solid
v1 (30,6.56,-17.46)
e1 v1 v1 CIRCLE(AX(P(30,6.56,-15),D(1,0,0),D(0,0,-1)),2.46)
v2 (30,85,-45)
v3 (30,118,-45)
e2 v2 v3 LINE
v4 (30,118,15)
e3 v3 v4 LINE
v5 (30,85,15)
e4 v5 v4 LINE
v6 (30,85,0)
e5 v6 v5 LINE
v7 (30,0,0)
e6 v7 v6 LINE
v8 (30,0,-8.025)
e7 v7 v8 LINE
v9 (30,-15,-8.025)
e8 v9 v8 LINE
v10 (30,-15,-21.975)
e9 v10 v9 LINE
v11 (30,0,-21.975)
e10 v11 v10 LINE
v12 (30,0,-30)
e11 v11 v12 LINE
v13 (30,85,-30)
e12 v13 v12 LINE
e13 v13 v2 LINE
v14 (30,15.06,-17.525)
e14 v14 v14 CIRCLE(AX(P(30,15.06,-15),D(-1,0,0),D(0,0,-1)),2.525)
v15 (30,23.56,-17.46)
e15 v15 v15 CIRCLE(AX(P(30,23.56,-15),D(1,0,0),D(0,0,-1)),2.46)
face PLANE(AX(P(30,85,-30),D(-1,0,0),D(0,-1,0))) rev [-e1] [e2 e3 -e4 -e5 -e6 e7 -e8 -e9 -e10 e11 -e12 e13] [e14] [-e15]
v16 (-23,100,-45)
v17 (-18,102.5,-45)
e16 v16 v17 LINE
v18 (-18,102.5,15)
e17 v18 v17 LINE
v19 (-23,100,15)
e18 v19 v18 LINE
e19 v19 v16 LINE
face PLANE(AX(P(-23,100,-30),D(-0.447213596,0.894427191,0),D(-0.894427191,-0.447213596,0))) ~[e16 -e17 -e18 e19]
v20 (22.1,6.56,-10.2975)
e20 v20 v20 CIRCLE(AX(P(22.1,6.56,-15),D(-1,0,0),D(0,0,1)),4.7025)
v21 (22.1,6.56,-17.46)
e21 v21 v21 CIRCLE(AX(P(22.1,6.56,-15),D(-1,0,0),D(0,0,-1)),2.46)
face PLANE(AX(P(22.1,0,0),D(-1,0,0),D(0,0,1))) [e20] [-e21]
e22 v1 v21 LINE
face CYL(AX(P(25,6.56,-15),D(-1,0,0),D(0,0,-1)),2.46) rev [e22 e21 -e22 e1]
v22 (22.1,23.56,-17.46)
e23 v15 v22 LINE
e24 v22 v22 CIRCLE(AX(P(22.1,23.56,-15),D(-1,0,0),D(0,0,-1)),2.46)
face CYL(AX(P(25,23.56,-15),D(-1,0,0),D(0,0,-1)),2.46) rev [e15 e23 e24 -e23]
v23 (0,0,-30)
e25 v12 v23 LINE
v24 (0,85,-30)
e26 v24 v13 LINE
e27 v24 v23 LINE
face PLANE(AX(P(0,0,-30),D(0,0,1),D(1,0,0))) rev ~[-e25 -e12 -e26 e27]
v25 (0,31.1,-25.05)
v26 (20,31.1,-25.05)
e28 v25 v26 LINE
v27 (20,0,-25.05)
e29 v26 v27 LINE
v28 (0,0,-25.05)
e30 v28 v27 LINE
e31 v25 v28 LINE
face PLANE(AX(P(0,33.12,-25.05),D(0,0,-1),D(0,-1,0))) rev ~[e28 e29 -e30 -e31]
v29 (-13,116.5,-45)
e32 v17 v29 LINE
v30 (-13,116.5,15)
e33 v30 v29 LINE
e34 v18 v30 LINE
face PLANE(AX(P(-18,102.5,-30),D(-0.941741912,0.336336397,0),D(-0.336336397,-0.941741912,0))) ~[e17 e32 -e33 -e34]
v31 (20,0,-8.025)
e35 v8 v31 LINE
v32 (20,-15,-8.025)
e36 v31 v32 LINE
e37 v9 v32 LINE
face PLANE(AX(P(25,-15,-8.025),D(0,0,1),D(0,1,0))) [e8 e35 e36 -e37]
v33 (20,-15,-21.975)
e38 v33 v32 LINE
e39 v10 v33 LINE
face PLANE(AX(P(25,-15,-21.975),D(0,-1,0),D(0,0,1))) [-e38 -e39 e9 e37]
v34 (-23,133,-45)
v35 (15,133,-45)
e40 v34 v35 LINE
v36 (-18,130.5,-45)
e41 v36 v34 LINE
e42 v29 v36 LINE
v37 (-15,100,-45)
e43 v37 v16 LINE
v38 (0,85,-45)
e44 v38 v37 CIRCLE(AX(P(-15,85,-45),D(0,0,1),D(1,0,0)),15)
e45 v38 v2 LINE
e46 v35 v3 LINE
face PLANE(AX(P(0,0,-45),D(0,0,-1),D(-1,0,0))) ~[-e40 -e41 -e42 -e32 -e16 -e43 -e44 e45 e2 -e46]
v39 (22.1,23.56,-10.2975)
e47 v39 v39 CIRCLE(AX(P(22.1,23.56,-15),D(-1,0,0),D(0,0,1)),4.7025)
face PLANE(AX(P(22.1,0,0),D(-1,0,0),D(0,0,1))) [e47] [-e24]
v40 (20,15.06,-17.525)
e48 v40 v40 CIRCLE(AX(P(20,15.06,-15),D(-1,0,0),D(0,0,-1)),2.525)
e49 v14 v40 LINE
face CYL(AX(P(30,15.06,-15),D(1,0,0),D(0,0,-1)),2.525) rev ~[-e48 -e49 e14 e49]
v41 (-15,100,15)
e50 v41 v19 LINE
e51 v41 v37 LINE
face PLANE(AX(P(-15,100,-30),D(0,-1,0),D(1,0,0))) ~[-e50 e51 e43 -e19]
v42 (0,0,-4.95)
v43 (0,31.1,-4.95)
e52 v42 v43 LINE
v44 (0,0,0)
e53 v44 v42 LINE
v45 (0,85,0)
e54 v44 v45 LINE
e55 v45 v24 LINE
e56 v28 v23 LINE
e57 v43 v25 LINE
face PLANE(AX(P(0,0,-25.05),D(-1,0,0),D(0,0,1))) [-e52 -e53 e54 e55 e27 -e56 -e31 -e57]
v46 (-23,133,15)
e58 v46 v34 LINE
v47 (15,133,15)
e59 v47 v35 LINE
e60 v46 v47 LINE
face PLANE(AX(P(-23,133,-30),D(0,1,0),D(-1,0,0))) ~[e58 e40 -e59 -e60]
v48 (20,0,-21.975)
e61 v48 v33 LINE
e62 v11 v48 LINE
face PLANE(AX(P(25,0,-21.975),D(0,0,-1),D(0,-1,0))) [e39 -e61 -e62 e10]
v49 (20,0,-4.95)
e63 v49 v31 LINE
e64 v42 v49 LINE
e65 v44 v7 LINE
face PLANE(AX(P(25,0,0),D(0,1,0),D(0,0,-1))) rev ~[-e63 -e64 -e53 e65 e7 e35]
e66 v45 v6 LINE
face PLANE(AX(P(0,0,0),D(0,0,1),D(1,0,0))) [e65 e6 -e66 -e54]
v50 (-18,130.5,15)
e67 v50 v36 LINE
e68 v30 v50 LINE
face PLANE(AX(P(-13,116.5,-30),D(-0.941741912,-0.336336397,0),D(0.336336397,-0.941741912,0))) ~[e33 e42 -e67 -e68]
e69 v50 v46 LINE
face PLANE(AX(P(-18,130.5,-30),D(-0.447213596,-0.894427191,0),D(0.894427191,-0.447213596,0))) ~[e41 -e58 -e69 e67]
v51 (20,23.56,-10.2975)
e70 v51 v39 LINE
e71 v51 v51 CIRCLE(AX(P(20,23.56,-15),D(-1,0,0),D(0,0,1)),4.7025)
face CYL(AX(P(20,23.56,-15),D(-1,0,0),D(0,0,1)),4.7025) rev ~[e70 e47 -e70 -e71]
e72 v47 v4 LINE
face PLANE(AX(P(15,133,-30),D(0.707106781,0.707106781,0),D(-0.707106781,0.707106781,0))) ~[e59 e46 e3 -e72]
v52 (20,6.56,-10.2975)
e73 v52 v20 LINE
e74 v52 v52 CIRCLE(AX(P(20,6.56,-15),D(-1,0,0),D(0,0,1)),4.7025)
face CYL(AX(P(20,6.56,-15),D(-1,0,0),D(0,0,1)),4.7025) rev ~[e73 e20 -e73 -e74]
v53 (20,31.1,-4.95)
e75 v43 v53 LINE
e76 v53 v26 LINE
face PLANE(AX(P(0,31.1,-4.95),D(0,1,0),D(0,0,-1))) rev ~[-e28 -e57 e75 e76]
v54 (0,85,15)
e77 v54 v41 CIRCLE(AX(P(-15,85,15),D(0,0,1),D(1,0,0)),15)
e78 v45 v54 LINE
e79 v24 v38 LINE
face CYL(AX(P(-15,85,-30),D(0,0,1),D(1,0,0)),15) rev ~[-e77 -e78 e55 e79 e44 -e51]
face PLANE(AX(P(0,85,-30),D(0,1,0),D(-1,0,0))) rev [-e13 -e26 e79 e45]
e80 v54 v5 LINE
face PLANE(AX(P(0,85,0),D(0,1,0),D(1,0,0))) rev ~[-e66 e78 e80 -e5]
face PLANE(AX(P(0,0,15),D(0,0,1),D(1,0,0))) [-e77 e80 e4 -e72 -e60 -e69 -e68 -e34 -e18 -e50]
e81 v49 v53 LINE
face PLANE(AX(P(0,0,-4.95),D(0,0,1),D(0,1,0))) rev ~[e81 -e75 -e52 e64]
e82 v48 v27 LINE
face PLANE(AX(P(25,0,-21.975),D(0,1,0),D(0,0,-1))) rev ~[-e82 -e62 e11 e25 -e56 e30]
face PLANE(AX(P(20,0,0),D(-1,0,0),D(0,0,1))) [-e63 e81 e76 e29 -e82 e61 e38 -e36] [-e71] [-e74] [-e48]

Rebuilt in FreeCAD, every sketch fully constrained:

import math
import FreeCAD as App
import Part
import Sketcher
Q = App.Units.Quantity


def add_polygon(sketch, points):
    """Adds a closed chain of lines whose ends are joined by coincident constraints."""
    first, n = sketch.GeometryCount, len(points)
    for a, b in zip(points, points[1:] + points[:1]):
        sketch.addGeometry(Part.LineSegment(App.Vector(*a, 0), App.Vector(*b, 0)), False)
    for i in range(n):
        sketch.addConstraint(Sketcher.Constraint("Coincident", first + i, 2, first + (i + 1) % n, 1))

doc = App.newDocument("Part")
body = doc.addObject("PartDesign::Body", "Body")

# Sketch on XY plane
sketch1 = body.newObject("Sketcher::SketchObject", "Sketch")
sketch1.AttachmentSupport = (doc.getObject("XY_Plane"), [""])
sketch1.MapMode = "FlatFace"
add_polygon(sketch1, [(0, 40), (0, 0), (25, 0), (25, 40)])  # lines 0-3
sketch1.addConstraint(Sketcher.Constraint("Vertical", 0))
sketch1.addConstraint(Sketcher.Constraint("Horizontal", 1))
sketch1.addConstraint(Sketcher.Constraint("Vertical", 2))
sketch1.addConstraint(Sketcher.Constraint("Horizontal", 3))
sketch1.addConstraint(Sketcher.Constraint("Coincident", 0, 2, -1, 1))
sketch1.addConstraint(Sketcher.Constraint("DistanceX", 1, 1, 1, 2, Q("25 mm")))
sketch1.addConstraint(Sketcher.Constraint("DistanceY", 0, 2, 0, 1, Q("40 mm")))
pad1 = body.newObject("PartDesign::Pad", "Pad")
pad1.Profile = sketch1
pad1.Length = 30
pad1.Reversed = True

# Sketch on YZ plane
sketch2 = body.newObject("Sketcher::SketchObject", "Sketch001")
sketch2.AttachmentSupport = (doc.getObject("YZ_Plane"), [""])
sketch2.MapMode = "FlatFace"
sketch2.AttachmentOffset = App.Placement(App.Vector(0, 0, 25), App.Rotation())
sketch2.addGeometry(Part.Circle(App.Vector(6.6, -15, 0), App.Vector(0, 0, 1), 2.5), False)
sketch2.addConstraint(Sketcher.Constraint("Diameter", 0, Q("4.92 mm")))
sketch2.addConstraint(Sketcher.Constraint("DistanceY", 0, 3, -1, 1, Q("15 mm")))
sketch2.addConstraint(Sketcher.Constraint("DistanceX", -1, 1, 0, 3, Q("6.56 mm")))
pocket1 = body.newObject("PartDesign::Pocket", "Pocket")
pocket1.Profile = sketch2
pocket1.Length = 30

# Sketch on YZ plane
sketch3 = body.newObject("Sketcher::SketchObject", "Sketch002")
sketch3.AttachmentSupport = (doc.getObject("YZ_Plane"), [""])
sketch3.MapMode = "FlatFace"
add_polygon(sketch3, [(0, -25), (0, -5), (33, -5), (33, -25)])  # lines 0-3
sketch3.addConstraint(Sketcher.Constraint("Vertical", 0))
sketch3.addConstraint(Sketcher.Constraint("Horizontal", 1))
sketch3.addConstraint(Sketcher.Constraint("Vertical", 2))
sketch3.addConstraint(Sketcher.Constraint("Horizontal", 3))
sketch3.addConstraint(Sketcher.Constraint("PointOnObject", 0, 2, -2))
sketch3.addConstraint(Sketcher.Constraint("DistanceY", 0, 1, 0, 2, Q("20.1 mm")))
sketch3.addConstraint(Sketcher.Constraint("DistanceX", 1, 1, 1, 2, Q("33.12 mm")))
sketch3.addConstraint(Sketcher.Constraint("DistanceY", 0, 2, -1, 1, Q("4.95 mm")))
pocket2 = body.newObject("PartDesign::Pocket", "Pocket001")
pocket2.Profile = sketch3
pocket2.Length = 20
pocket2.Reversed = True

# Sketch on XZ plane
sketch4 = body.newObject("Sketcher::SketchObject", "Sketch003")
sketch4.AttachmentSupport = (doc.getObject("XZ_Plane"), [""])
sketch4.MapMode = "FlatFace"
add_polygon(sketch4, [(25, -8), (20, -8), (20, -22), (25, -22)])  # lines 0-3
sketch4.addConstraint(Sketcher.Constraint("Horizontal", 0))
sketch4.addConstraint(Sketcher.Constraint("Vertical", 1))
sketch4.addConstraint(Sketcher.Constraint("Horizontal", 2))
sketch4.addConstraint(Sketcher.Constraint("Vertical", 3))
sketch4.addConstraint(Sketcher.Constraint("DistanceY", 1, 2, 1, 1, Q("13.95 mm")))
sketch4.addConstraint(Sketcher.Constraint("DistanceX", 0, 2, 0, 1, Q("5 mm")))
sketch4.addConstraint(Sketcher.Constraint("DistanceX", -1, 1, 0, 2, Q("20 mm")))
sketch4.addConstraint(Sketcher.Constraint("DistanceY", 0, 2, -1, 1, Q("8.025 mm")))
pad2 = body.newObject("PartDesign::Pad", "Pad001")
pad2.Profile = sketch4
pad2.Length = 15

# Sketch on YZ plane
sketch5 = body.newObject("Sketcher::SketchObject", "Sketch004")
sketch5.AttachmentSupport = (doc.getObject("YZ_Plane"), [""])
sketch5.MapMode = "FlatFace"
sketch5.AttachmentOffset = App.Placement(App.Vector(0, 0, 20), App.Rotation())
sketch5.addGeometry(Part.Circle(App.Vector(6.6, -15, 0), App.Vector(0, 0, 1), 4.7), False)
sketch5.addGeometry(Part.Circle(App.Vector(6.6, -15, 0), App.Vector(0, 0, 1), 2.5), False)
sketch5.addConstraint(Sketcher.Constraint("Coincident", 1, 3, 0, 3))
sketch5.addConstraint(Sketcher.Constraint("Diameter", 0, Q("9.405 mm")))
sketch5.addConstraint(Sketcher.Constraint("Diameter", 1, Q("4.92 mm")))
sketch5.addConstraint(Sketcher.Constraint("DistanceY", 0, 3, -1, 1, Q("15 mm")))
sketch5.addConstraint(Sketcher.Constraint("DistanceX", -1, 1, 0, 3, Q("6.56 mm")))
pocket3 = body.newObject("PartDesign::Pocket", "Pocket002")
pocket3.Profile = sketch5
pocket3.Length = 2.1
pocket3.Reversed = True

# Sketch on YZ plane
sketch6 = body.newObject("Sketcher::SketchObject", "Sketch005")
sketch6.AttachmentSupport = (doc.getObject("YZ_Plane"), [""])
sketch6.MapMode = "FlatFace"
sketch6.AttachmentOffset = App.Placement(App.Vector(0, 0, 25), App.Rotation())
sketch6.addGeometry(Part.Circle(App.Vector(23.6, -15, 0), App.Vector(0, 0, 1), 2.5), False)
sketch6.addConstraint(Sketcher.Constraint("Diameter", 0, Q("4.92 mm")))
sketch6.addConstraint(Sketcher.Constraint("DistanceY", 0, 3, -1, 1, Q("15 mm")))
sketch6.addConstraint(Sketcher.Constraint("DistanceX", -1, 1, 0, 3, Q("23.56 mm")))
pocket4 = body.newObject("PartDesign::Pocket", "Pocket003")
pocket4.Profile = sketch6
pocket4.Length = 10

# Sketch on YZ plane
sketch7 = body.newObject("Sketcher::SketchObject", "Sketch006")
sketch7.AttachmentSupport = (doc.getObject("YZ_Plane"), [""])
sketch7.MapMode = "FlatFace"
sketch7.AttachmentOffset = App.Placement(App.Vector(0, 0, 20), App.Rotation())
sketch7.addGeometry(Part.Circle(App.Vector(23.6, -15, 0), App.Vector(0, 0, 1), 4.7), False)
sketch7.addGeometry(Part.Circle(App.Vector(23.6, -15, 0), App.Vector(0, 0, 1), 2.5), False)
sketch7.addConstraint(Sketcher.Constraint("Coincident", 1, 3, 0, 3))
sketch7.addConstraint(Sketcher.Constraint("Diameter", 0, Q("9.405 mm")))
sketch7.addConstraint(Sketcher.Constraint("Diameter", 1, Q("4.92 mm")))
sketch7.addConstraint(Sketcher.Constraint("DistanceY", 0, 3, -1, 1, Q("15 mm")))
sketch7.addConstraint(Sketcher.Constraint("DistanceX", -1, 1, 0, 3, Q("23.56 mm")))
pocket5 = body.newObject("PartDesign::Pocket", "Pocket004")
pocket5.Profile = sketch7
pocket5.Length = 2.1
pocket5.Reversed = True

# Sketch on YZ plane
sketch8 = body.newObject("Sketcher::SketchObject", "Sketch007")
sketch8.AttachmentSupport = (doc.getObject("YZ_Plane"), [""])
sketch8.MapMode = "FlatFace"
sketch8.AttachmentOffset = App.Placement(App.Vector(0, 0, 25), App.Rotation())
add_polygon(sketch8, [(0, -30), (40, -30), (40, 0), (0, 0), (0, -8), (-15, -8), (-15, -22), (0, -22)])  # lines 0-7
sketch8.addGeometry(Part.Circle(App.Vector(6.6, -15, 0), App.Vector(0, 0, 1), 2.5), False)  # 8
sketch8.addGeometry(Part.Circle(App.Vector(23.6, -15, 0), App.Vector(0, 0, 1), 2.5), False)  # 9
sketch8.addConstraint(Sketcher.Constraint("Horizontal", 0))
sketch8.addConstraint(Sketcher.Constraint("Vertical", 1))
sketch8.addConstraint(Sketcher.Constraint("Horizontal", 2))
sketch8.addConstraint(Sketcher.Constraint("Vertical", 3))
sketch8.addConstraint(Sketcher.Constraint("Horizontal", 4))
sketch8.addConstraint(Sketcher.Constraint("Vertical", 5))
sketch8.addConstraint(Sketcher.Constraint("Horizontal", 6))
sketch8.addConstraint(Sketcher.Constraint("Vertical", 7))
sketch8.addConstraint(Sketcher.Constraint("Coincident", 2, 2, -1, 1))
sketch8.addConstraint(Sketcher.Constraint("Equal", 8, 9))
sketch8.addConstraint(Sketcher.Constraint("PointOnObject", 6, 2, -2))
sketch8.addConstraint(Sketcher.Constraint("Horizontal", 8, 3, 9, 3))
sketch8.addConstraint(Sketcher.Constraint("Equal", 3, 7))
sketch8.addConstraint(Sketcher.Constraint("Diameter", 8, Q("4.92 mm")))
sketch8.addConstraint(Sketcher.Constraint("DistanceX", 0, 1, 0, 2, Q("40 mm")))
sketch8.addConstraint(Sketcher.Constraint("DistanceX", 4, 2, 4, 1, Q("15 mm")))
sketch8.addConstraint(Sketcher.Constraint("DistanceY", 1, 1, 1, 2, Q("30 mm")))
sketch8.addConstraint(Sketcher.Constraint("DistanceY", 8, 3, -1, 1, Q("15 mm")))
sketch8.addConstraint(Sketcher.Constraint("DistanceX", 8, 3, 9, 3, Q("17 mm")))
sketch8.addConstraint(Sketcher.Constraint("DistanceY", 5, 2, 5, 1, Q("13.95 mm")))
sketch8.addConstraint(Sketcher.Constraint("DistanceX", -1, 1, 8, 3, Q("6.56 mm")))
pad3 = body.newObject("PartDesign::Pad", "Pad002")
pad3.Profile = sketch8
pad3.Length = 5

# Sketch on XZ plane
sketch9 = body.newObject("Sketcher::SketchObject", "Sketch008")
sketch9.AttachmentSupport = (doc.getObject("XZ_Plane"), [""])
sketch9.MapMode = "FlatFace"
sketch9.AttachmentOffset = App.Placement(App.Vector(0, 0, -40), App.Rotation())
add_polygon(sketch9, [(30, -30), (0, -30), (0, 0), (30, 0)])  # lines 0-3
sketch9.addConstraint(Sketcher.Constraint("Horizontal", 0))
sketch9.addConstraint(Sketcher.Constraint("Vertical", 1))
sketch9.addConstraint(Sketcher.Constraint("Horizontal", 2))
sketch9.addConstraint(Sketcher.Constraint("Vertical", 3))
sketch9.addConstraint(Sketcher.Constraint("Coincident", 1, 2, -1, 1))
sketch9.addConstraint(Sketcher.Constraint("Equal", 2, 1))
sketch9.addConstraint(Sketcher.Constraint("DistanceX", 0, 2, 0, 1, Q("30 mm")))
pad4 = body.newObject("PartDesign::Pad", "Pad003")
pad4.Profile = sketch9
pad4.Length = 30
pad4.Reversed = True

# Sketch on YZ plane
sketch10 = body.newObject("Sketcher::SketchObject", "Sketch009")
sketch10.AttachmentSupport = (doc.getObject("YZ_Plane"), [""])
sketch10.MapMode = "FlatFace"
sketch10.AttachmentOffset = App.Placement(App.Vector(0, 0, 30), App.Rotation())
sketch10.addGeometry(Part.Circle(App.Vector(15.1, -15, 0), App.Vector(0, 0, 1), 2.5), False)
sketch10.addConstraint(Sketcher.Constraint("Diameter", 0, Q("5.05 mm")))
sketch10.addConstraint(Sketcher.Constraint("DistanceY", 0, 3, -1, 1, Q("15 mm")))
sketch10.addConstraint(Sketcher.Constraint("DistanceX", -1, 1, 0, 3, Q("15.06 mm")))
pocket6 = body.newObject("PartDesign::Pocket", "Pocket005")
pocket6.Profile = sketch10
pocket6.Length = 30

# Sketch on XY plane
sketch11 = body.newObject("Sketcher::SketchObject", "Sketch010")
sketch11.AttachmentSupport = (doc.getObject("XY_Plane"), [""])
sketch11.MapMode = "FlatFace"
sketch11.addGeometry(Part.LineSegment(App.Vector(0, 70, 0), App.Vector(30, 70, 0)), False)
sketch11.addGeometry(Part.LineSegment(App.Vector(30, 70, 0), App.Vector(30, 118, 0)), False)
sketch11.addGeometry(Part.LineSegment(App.Vector(30, 118, 0), App.Vector(15, 133, 0)), False)
sketch11.addGeometry(Part.LineSegment(App.Vector(15, 133, 0), App.Vector(-23, 133, 0)), False)
sketch11.addGeometry(Part.LineSegment(App.Vector(-23, 133, 0), App.Vector(-18, 130, 0)), False)
sketch11.addGeometry(Part.LineSegment(App.Vector(-18, 130, 0), App.Vector(-13, 116, 0)), False)
sketch11.addGeometry(Part.LineSegment(App.Vector(-13, 116, 0), App.Vector(-18, 102, 0)), False)
sketch11.addGeometry(Part.LineSegment(App.Vector(-18, 102, 0), App.Vector(-23, 100, 0)), False)
sketch11.addGeometry(Part.LineSegment(App.Vector(-23, 100, 0), App.Vector(-15, 100, 0)), False)
sketch11.addGeometry(Part.ArcOfCircle(Part.Circle(App.Vector(-15, 85, 0), App.Vector(0, 0, 1), 15), math.radians(0), math.radians(90)), False)
sketch11.addGeometry(Part.LineSegment(App.Vector(0, 85, 0), App.Vector(0, 70, 0)), False)
sketch11.addConstraint(Sketcher.Constraint("Coincident", 0, 2, 1, 1))
sketch11.addConstraint(Sketcher.Constraint("Coincident", 1, 2, 2, 1))
sketch11.addConstraint(Sketcher.Constraint("Coincident", 2, 2, 3, 1))
sketch11.addConstraint(Sketcher.Constraint("Coincident", 3, 2, 4, 1))
sketch11.addConstraint(Sketcher.Constraint("Coincident", 4, 2, 5, 1))
sketch11.addConstraint(Sketcher.Constraint("Coincident", 5, 2, 6, 1))
sketch11.addConstraint(Sketcher.Constraint("Coincident", 6, 2, 7, 1))
sketch11.addConstraint(Sketcher.Constraint("Coincident", 7, 2, 8, 1))
sketch11.addConstraint(Sketcher.Constraint("Tangent", 8, 2, 9, 2))
sketch11.addConstraint(Sketcher.Constraint("Tangent", 9, 1, 10, 1))
sketch11.addConstraint(Sketcher.Constraint("Coincident", 10, 2, 0, 1))
sketch11.addConstraint(Sketcher.Constraint("Horizontal", 0))
sketch11.addConstraint(Sketcher.Constraint("Vertical", 1))
sketch11.addConstraint(Sketcher.Constraint("Horizontal", 3))
sketch11.addConstraint(Sketcher.Constraint("Horizontal", 8))
sketch11.addConstraint(Sketcher.Constraint("Vertical", 10))
sketch11.addConstraint(Sketcher.Constraint("PointOnObject", 9, 1, -2))
sketch11.addConstraint(Sketcher.Constraint("Vertical", 4, 2, 6, 2))
sketch11.addConstraint(Sketcher.Constraint("Vertical", 3, 2, 7, 2))
sketch11.addConstraint(Sketcher.Constraint("Equal", 5, 6))
sketch11.addConstraint(Sketcher.Constraint("Equal", 4, 7))
sketch11.addConstraint(Sketcher.Constraint("Radius", 9, Q("15 mm")))
sketch11.addConstraint(Sketcher.Constraint("DistanceX", 0, 1, 0, 2, Q("30 mm")))
sketch11.addConstraint(Sketcher.Constraint("DistanceY", 10, 2, 10, 1, Q("15 mm")))
sketch11.addConstraint(Sketcher.Constraint("DistanceX", -1, 1, 2, 2, Q("15 mm")))
sketch11.addConstraint(Sketcher.Constraint("DistanceY", 1, 2, 2, 2, Q("15 mm")))
sketch11.addConstraint(Sketcher.Constraint("DistanceX", 3, 2, 3, 1, Q("38 mm")))
sketch11.addConstraint(Sketcher.Constraint("DistanceY", 1, 1, 1, 2, Q("48 mm")))
sketch11.addConstraint(Sketcher.Constraint("DistanceY", -1, 1, 9, 3, Q("85 mm")))
sketch11.addConstraint(Sketcher.Constraint("DistanceX", 4, 2, -1, 1, Q("18 mm")))
sketch11.addConstraint(Sketcher.Constraint("DistanceX", 5, 2, -1, 1, Q("13 mm")))
sketch11.addConstraint(Sketcher.Constraint("DistanceY", 5, 2, 4, 2, Q("14 mm")))
pad5 = body.newObject("PartDesign::Pad", "Pad004")
pad5.Profile = sketch11
pad5.Length = 30
pad5.Reversed = True

# Sketch on YZ plane
sketch12 = body.newObject("Sketcher::SketchObject", "Sketch011")
sketch12.AttachmentSupport = (doc.getObject("YZ_Plane"), [""])
sketch12.MapMode = "FlatFace"
add_polygon(sketch12, [(33.1, -5), (33.1, -25.1), (31.1, -25.1), (31.1, -5)])  # lines 0-3
sketch12.addConstraint(Sketcher.Constraint("Vertical", 0))
sketch12.addConstraint(Sketcher.Constraint("Horizontal", 1))
sketch12.addConstraint(Sketcher.Constraint("Vertical", 2))
sketch12.addConstraint(Sketcher.Constraint("Horizontal", 3))
sketch12.addConstraint(Sketcher.Constraint("DistanceX", 1, 2, 1, 1, Q("2.02 mm")))
sketch12.addConstraint(Sketcher.Constraint("DistanceY", 0, 2, 0, 1, Q("20.1 mm")))
sketch12.addConstraint(Sketcher.Constraint("DistanceX", -1, 1, 1, 2, Q("31.1 mm")))
sketch12.addConstraint(Sketcher.Constraint("DistanceY", 0, 2, -1, 1, Q("25.05 mm")))
pad6 = body.newObject("PartDesign::Pad", "Pad005")
pad6.Profile = sketch12
pad6.Length = 20

# Sketch on XY plane
sketch13 = body.newObject("Sketcher::SketchObject", "Sketch012")
sketch13.AttachmentSupport = (doc.getObject("XY_Plane"), [""])
sketch13.MapMode = "FlatFace"
sketch13.addGeometry(Part.ArcOfCircle(Part.Circle(App.Vector(-15, 85, 0), App.Vector(0, 0, 1), 15), math.radians(0), math.radians(90)), False)
sketch13.addGeometry(Part.LineSegment(App.Vector(0, 85, 0), App.Vector(30, 85, 0)), False)
sketch13.addGeometry(Part.LineSegment(App.Vector(30, 85, 0), App.Vector(30, 118, 0)), False)
sketch13.addGeometry(Part.LineSegment(App.Vector(30, 118, 0), App.Vector(15, 133, 0)), False)
sketch13.addGeometry(Part.LineSegment(App.Vector(15, 133, 0), App.Vector(-23, 133, 0)), False)
sketch13.addGeometry(Part.LineSegment(App.Vector(-23, 133, 0), App.Vector(-18, 130, 0)), False)
sketch13.addGeometry(Part.LineSegment(App.Vector(-18, 130, 0), App.Vector(-13, 116, 0)), False)
sketch13.addGeometry(Part.LineSegment(App.Vector(-13, 116, 0), App.Vector(-18, 102, 0)), False)
sketch13.addGeometry(Part.LineSegment(App.Vector(-18, 102, 0), App.Vector(-23, 100, 0)), False)
sketch13.addGeometry(Part.LineSegment(App.Vector(-23, 100, 0), App.Vector(-15, 100, 0)), False)
sketch13.addConstraint(Sketcher.Constraint("Coincident", 0, 1, 1, 1))
sketch13.addConstraint(Sketcher.Constraint("Coincident", 1, 2, 2, 1))
sketch13.addConstraint(Sketcher.Constraint("Coincident", 2, 2, 3, 1))
sketch13.addConstraint(Sketcher.Constraint("Coincident", 3, 2, 4, 1))
sketch13.addConstraint(Sketcher.Constraint("Coincident", 4, 2, 5, 1))
sketch13.addConstraint(Sketcher.Constraint("Coincident", 5, 2, 6, 1))
sketch13.addConstraint(Sketcher.Constraint("Coincident", 6, 2, 7, 1))
sketch13.addConstraint(Sketcher.Constraint("Coincident", 7, 2, 8, 1))
sketch13.addConstraint(Sketcher.Constraint("Coincident", 8, 2, 9, 1))
sketch13.addConstraint(Sketcher.Constraint("Tangent", 9, 2, 0, 2))
sketch13.addConstraint(Sketcher.Constraint("Horizontal", 1))
sketch13.addConstraint(Sketcher.Constraint("Vertical", 2))
sketch13.addConstraint(Sketcher.Constraint("Horizontal", 4))
sketch13.addConstraint(Sketcher.Constraint("Horizontal", 9))
sketch13.addConstraint(Sketcher.Constraint("PointOnObject", 0, 1, -2))
sketch13.addConstraint(Sketcher.Constraint("Vertical", 5, 2, 7, 2))
sketch13.addConstraint(Sketcher.Constraint("Vertical", 4, 2, 8, 2))
sketch13.addConstraint(Sketcher.Constraint("Equal", 6, 7))
sketch13.addConstraint(Sketcher.Constraint("Equal", 5, 8))
sketch13.addConstraint(Sketcher.Constraint("Radius", 0, Q("15 mm")))
sketch13.addConstraint(Sketcher.Constraint("DistanceX", 1, 1, 1, 2, Q("30 mm")))
sketch13.addConstraint(Sketcher.Constraint("DistanceX", 4, 2, 4, 1, Q("38 mm")))
sketch13.addConstraint(Sketcher.Constraint("DistanceX", 9, 1, 9, 2, Q("8 mm")))
sketch13.addConstraint(Sketcher.Constraint("DistanceY", 2, 1, 2, 2, Q("33 mm")))
sketch13.addConstraint(Sketcher.Constraint("Angle", 3, Q("135 deg")))
sketch13.addConstraint(Sketcher.Constraint("DistanceY", -1, 1, 0, 3, Q("85 mm")))
sketch13.addConstraint(Sketcher.Constraint("DistanceY", -1, 1, 0, 1, Q("85 mm")))
sketch13.addConstraint(Sketcher.Constraint("DistanceX", 5, 2, -1, 1, Q("18 mm")))
sketch13.addConstraint(Sketcher.Constraint("DistanceX", 6, 2, -1, 1, Q("13 mm")))
sketch13.addConstraint(Sketcher.Constraint("DistanceY", 6, 2, 5, 2, Q("14 mm")))
pad7 = body.newObject("PartDesign::Pad", "Pad006")
pad7.Profile = sketch13
pad7.Length = 15
doc.recompute()

datumplane = body.newObject("PartDesign::Plane", "DatumPlane")
datumplane.AttachmentSupport = (doc.getObject("XY_Plane"), [""])
datumplane.MapMode = "FlatFace"
datumplane.AttachmentOffset = App.Placement(App.Vector(0, 0, -15), App.Rotation())
mirrored = body.newObject("PartDesign::Mirrored", "Mirrored")
mirrored.Originals = [pad7]
mirrored.MirrorPlane = (datumplane, [""])
body.Tip = mirrored

doc.recompute()
